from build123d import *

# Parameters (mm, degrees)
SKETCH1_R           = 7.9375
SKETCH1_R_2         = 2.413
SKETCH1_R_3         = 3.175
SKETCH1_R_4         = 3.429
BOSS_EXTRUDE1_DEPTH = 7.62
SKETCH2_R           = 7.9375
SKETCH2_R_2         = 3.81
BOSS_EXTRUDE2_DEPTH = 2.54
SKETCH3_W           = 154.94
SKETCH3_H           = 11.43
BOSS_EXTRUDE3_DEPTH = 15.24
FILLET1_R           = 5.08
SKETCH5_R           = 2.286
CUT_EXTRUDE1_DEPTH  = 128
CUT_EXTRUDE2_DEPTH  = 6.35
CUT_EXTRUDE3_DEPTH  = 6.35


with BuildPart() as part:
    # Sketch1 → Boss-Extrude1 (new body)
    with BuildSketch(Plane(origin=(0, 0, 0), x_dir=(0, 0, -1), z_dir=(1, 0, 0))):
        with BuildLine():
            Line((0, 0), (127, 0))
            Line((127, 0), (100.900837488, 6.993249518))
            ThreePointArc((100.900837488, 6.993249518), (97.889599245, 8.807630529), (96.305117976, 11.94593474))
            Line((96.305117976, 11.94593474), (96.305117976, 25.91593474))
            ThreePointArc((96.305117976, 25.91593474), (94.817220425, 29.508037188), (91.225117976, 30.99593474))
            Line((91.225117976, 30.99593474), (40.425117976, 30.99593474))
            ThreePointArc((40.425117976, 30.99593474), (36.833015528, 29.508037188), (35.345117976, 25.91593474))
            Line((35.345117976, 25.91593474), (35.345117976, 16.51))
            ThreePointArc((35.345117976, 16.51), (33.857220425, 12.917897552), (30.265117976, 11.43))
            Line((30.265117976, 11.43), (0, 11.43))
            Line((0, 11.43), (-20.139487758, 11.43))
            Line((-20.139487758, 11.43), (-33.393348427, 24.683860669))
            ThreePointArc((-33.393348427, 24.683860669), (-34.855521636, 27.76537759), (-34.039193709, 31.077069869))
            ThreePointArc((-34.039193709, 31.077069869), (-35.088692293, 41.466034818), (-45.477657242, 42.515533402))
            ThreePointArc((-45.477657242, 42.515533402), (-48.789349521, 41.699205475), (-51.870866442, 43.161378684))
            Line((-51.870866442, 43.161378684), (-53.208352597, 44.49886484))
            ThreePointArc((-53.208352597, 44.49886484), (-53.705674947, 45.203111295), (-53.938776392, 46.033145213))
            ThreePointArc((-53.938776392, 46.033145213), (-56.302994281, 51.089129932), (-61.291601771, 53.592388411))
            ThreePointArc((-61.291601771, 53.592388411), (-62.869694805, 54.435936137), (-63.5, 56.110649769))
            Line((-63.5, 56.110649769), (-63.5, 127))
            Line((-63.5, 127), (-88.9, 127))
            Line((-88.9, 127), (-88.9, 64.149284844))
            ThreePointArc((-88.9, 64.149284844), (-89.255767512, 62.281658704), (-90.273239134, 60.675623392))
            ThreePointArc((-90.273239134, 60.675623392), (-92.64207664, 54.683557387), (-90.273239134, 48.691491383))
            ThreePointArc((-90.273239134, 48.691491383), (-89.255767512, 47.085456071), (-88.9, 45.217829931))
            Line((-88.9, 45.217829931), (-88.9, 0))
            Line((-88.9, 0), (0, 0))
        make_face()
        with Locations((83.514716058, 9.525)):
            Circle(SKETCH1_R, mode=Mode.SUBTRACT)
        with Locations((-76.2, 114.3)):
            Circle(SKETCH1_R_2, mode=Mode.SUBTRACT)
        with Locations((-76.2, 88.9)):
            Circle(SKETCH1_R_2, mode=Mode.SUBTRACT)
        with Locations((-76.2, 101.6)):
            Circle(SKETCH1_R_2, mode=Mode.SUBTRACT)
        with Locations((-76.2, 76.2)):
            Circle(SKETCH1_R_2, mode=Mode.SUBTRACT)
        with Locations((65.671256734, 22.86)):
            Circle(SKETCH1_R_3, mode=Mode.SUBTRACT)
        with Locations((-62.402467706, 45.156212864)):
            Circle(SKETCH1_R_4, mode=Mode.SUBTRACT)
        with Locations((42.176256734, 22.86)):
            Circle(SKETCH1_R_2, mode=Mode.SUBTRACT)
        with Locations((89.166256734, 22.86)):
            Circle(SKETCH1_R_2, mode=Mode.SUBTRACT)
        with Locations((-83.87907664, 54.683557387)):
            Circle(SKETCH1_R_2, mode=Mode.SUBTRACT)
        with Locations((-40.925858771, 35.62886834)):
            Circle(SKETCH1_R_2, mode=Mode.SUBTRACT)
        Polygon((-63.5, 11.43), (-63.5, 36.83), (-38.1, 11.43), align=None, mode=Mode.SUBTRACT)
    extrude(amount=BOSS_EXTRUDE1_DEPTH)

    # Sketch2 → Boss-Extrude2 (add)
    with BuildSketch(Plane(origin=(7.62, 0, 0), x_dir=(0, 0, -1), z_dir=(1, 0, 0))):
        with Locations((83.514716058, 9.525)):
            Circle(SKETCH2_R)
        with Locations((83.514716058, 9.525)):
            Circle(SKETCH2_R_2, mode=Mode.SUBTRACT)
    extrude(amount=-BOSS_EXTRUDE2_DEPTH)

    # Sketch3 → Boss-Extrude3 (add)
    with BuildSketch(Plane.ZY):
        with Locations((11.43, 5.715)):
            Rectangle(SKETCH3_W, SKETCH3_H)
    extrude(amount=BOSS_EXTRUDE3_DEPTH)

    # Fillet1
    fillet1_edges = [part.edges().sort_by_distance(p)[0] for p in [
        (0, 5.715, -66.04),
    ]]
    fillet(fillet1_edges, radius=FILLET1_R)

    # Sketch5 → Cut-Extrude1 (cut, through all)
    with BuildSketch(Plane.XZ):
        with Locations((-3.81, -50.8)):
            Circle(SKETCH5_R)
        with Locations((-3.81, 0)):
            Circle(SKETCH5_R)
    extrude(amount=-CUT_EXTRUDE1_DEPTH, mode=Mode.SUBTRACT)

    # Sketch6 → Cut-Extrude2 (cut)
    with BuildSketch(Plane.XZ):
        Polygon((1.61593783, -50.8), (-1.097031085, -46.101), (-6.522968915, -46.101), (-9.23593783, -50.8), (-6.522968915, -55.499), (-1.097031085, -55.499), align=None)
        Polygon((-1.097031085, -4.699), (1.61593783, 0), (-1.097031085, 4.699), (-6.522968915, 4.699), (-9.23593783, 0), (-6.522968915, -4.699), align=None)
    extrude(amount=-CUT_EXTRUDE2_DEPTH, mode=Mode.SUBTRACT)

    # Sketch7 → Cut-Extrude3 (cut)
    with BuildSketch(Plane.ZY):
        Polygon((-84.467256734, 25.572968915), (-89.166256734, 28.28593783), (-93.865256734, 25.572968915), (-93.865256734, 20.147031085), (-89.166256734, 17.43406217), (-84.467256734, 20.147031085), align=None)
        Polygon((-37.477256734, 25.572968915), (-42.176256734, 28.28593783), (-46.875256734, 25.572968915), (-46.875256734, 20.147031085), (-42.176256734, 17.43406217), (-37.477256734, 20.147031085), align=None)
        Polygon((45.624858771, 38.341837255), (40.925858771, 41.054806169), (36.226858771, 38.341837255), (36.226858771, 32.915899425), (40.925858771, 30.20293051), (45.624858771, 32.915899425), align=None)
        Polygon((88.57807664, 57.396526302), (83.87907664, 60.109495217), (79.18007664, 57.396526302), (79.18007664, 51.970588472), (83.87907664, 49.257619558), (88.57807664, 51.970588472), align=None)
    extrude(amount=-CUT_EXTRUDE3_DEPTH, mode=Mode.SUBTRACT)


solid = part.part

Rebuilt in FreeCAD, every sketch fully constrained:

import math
import FreeCAD as App
import Part
import Sketcher
from FreeCAD import Vector
Q = App.Units.Quantity


def edges_at(feature, points):
    """Names of the edges that pass closest to the given points."""
    edges = feature.Shape.Edges
    near = lambda p: min(range(len(edges)), key=lambda i: edges[i].distToShape(Part.Vertex(*p))[0])
    return sorted({f"Edge{near(p) + 1}" for p in points})


def add_polygon(sketch, points):
    """Adds a closed chain of lines whose ends are joined by coincident constraints."""
    first, n = sketch.GeometryCount, len(points)
    for a, b in zip(points, points[1:] + points[:1]):
        sketch.addGeometry(Part.LineSegment(App.Vector(*a, 0), App.Vector(*b, 0)), False)
    for i in range(n):
        sketch.addConstraint(Sketcher.Constraint("Coincident", first + i, 2, first + (i + 1) % n, 1))

doc = App.newDocument("Part")
body = doc.addObject("PartDesign::Body", "Body")

sketch1 = body.newObject("Sketcher::SketchObject", "Sketch")
sketch1.AttachmentSupport = (doc.getObject("YZ_Plane"), [""])
sketch1.MapMode = "FlatFace"
sketch1.addGeometry(Part.LineSegment(Vector(0, -127, 0), Vector(7, -100.9, 0)), False)
sketch1.addGeometry(Part.ArcOfCircle(Part.Circle(Vector(13.1, -102.5, 0), Vector(0, 0, 1), 6.4), math.radians(101), math.radians(165)), False)
sketch1.addGeometry(Part.LineSegment(Vector(11.9, -96.3, 0), Vector(25.9, -96.3, 0)), False)
sketch1.addGeometry(Part.ArcOfCircle(Part.Circle(Vector(25.9, -91.2, 0), Vector(0, 0, 1), 5.1), math.radians(-90), math.radians(0)), False)
sketch1.addGeometry(Part.LineSegment(Vector(31, -91.2, 0), Vector(31, -40.4, 0)), False)
sketch1.addGeometry(Part.ArcOfCircle(Part.Circle(Vector(25.9, -40.4, 0), Vector(0, 0, 1), 5.1), math.radians(0), math.radians(90)), False)
sketch1.addGeometry(Part.LineSegment(Vector(25.9, -35.3, 0), Vector(16.5, -35.3, 0)), False)
sketch1.addGeometry(Part.ArcOfCircle(Part.Circle(Vector(16.5, -30.3, 0), Vector(0, 0, 1), 5.1), math.radians(180), math.radians(270)), False)
sketch1.addGeometry(Part.LineSegment(Vector(11.4, -30.3, 0), Vector(11.4, 20.1, 0)), False)
sketch1.addGeometry(Part.LineSegment(Vector(11.4, 20.1, 0), Vector(24.7, 33.4, 0)), False)
sketch1.addGeometry(Part.ArcOfCircle(Part.Circle(Vector(28.3, 29.8, 0), Vector(0, 0, 1), 5.1), math.radians(57), math.radians(135)), False)
sketch1.addGeometry(Part.ArcOfCircle(Part.Circle(Vector(35.6, 40.9, 0), Vector(0, 0, 1), 8.3), math.radians(-123), math.radians(33)), False)
sketch1.addGeometry(Part.ArcOfCircle(Part.Circle(Vector(46.8, 48.3, 0), Vector(0, 0, 1), 5.1), math.radians(135), math.radians(213)), False)
sketch1.addGeometry(Part.LineSegment(Vector(43.2, 51.9, 0), Vector(44.5, 53.2, 0)), False)
sketch1.addGeometry(Part.ArcOfCircle(Part.Circle(Vector(46.3, 51.4, 0), Vector(0, 0, 1), 2.5), math.radians(96), math.radians(135)), False)
sketch1.addGeometry(Part.ArcOfCircle(Part.Circle(Vector(45.2, 62.4, 0), Vector(0, 0, 1), 8.5), math.radians(-84), math.radians(-8)), False)
sketch1.addGeometry(Part.ArcOfCircle(Part.Circle(Vector(56.1, 61, 0), Vector(0, 0, 1), 2.5), math.radians(90), math.radians(172)), False)
sketch1.addGeometry(Part.LineSegment(Vector(56.1, 63.5, 0), Vector(127, 63.5, 0)), False)
sketch1.addGeometry(Part.LineSegment(Vector(127, 63.5, 0), Vector(127, 88.9, 0)), False)
sketch1.addGeometry(Part.LineSegment(Vector(127, 88.9, 0), Vector(64.1, 88.9, 0)), False)
sketch1.addGeometry(Part.ArcOfCircle(Part.Circle(Vector(64.1, 94, 0), Vector(0, 0, 1), 5.1), math.radians(-133), math.radians(-90)), False)
sketch1.addGeometry(Part.ArcOfCircle(Part.Circle(Vector(54.7, 83.9, 0), Vector(0, 0, 1), 8.8), math.radians(47), math.radians(133)), False)
sketch1.addGeometry(Part.ArcOfCircle(Part.Circle(Vector(45.2, 94, 0), Vector(0, 0, 1), 5.1), math.radians(-90), math.radians(-47)), False)
sketch1.addGeometry(Part.LineSegment(Vector(45.2, 88.9, 0), Vector(0, 88.9, 0)), False)
sketch1.addGeometry(Part.LineSegment(Vector(0, 88.9, 0), Vector(0, -127, 0)), False)
add_polygon(sketch1, [(11.4, 38.1), (11.4, 63.5), (36.8, 63.5)])
sketch1.addGeometry(Part.Circle(Vector(54.7, 83.9, 0), Vector(0, 0, 1), 2.4), False)
sketch1.addGeometry(Part.Circle(Vector(45.2, 62.4, 0), Vector(0, 0, 1), 3.4), False)
sketch1.addGeometry(Part.Circle(Vector(35.6, 40.9, 0), Vector(0, 0, 1), 2.4), False)
sketch1.addGeometry(Part.Circle(Vector(22.9, -42.2, 0), Vector(0, 0, 1), 2.4), False)
sketch1.addGeometry(Part.Circle(Vector(9.5, -83.5, 0), Vector(0, 0, 1), 7.9), False)
sketch1.addGeometry(Part.Circle(Vector(22.9, -65.7, 0), Vector(0, 0, 1), 3.2), False)
sketch1.addGeometry(Part.Circle(Vector(22.9, -89.2, 0), Vector(0, 0, 1), 2.4), False)
sketch1.addGeometry(Part.Circle(Vector(76.2, 76.2, 0), Vector(0, 0, 1), 2.4), False)
sketch1.addGeometry(Part.Circle(Vector(88.9, 76.2, 0), Vector(0, 0, 1), 2.4), False)
sketch1.addGeometry(Part.Circle(Vector(101.6, 76.2, 0), Vector(0, 0, 1), 2.4), False)
sketch1.addGeometry(Part.Circle(Vector(114.3, 76.2, 0), Vector(0, 0, 1), 2.4), False)
sketch1.addConstraint([
    Sketcher.Constraint("Tangent", 0, 2, 1, 2),
    Sketcher.Constraint("Coincident", 1, 1, 2, 1),
    Sketcher.Constraint("Tangent", 2, 2, 3, 1),
    Sketcher.Constraint("Tangent", 3, 2, 4, 1),
    Sketcher.Constraint("Tangent", 4, 2, 5, 1),
    Sketcher.Constraint("Tangent", 5, 2, 6, 1),
    Sketcher.Constraint("Tangent", 6, 2, 7, 2),
    Sketcher.Constraint("Tangent", 7, 1, 8, 1),
    Sketcher.Constraint("Coincident", 8, 2, 9, 1),
    Sketcher.Constraint("Tangent", 9, 2, 10, 2),
    Sketcher.Constraint("Tangent", 10, 1, 11, 1),
    Sketcher.Constraint("Tangent", 11, 2, 12, 2),
    Sketcher.Constraint("Tangent", 12, 1, 13, 1),
    Sketcher.Constraint("Tangent", 13, 2, 14, 2),
    Sketcher.Constraint("Tangent", 14, 1, 15, 1),
    Sketcher.Constraint("Tangent", 15, 2, 16, 2),
    Sketcher.Constraint("Tangent", 16, 1, 17, 1),
    Sketcher.Constraint("Coincident", 17, 2, 18, 1),
    Sketcher.Constraint("Coincident", 18, 2, 19, 1),
    Sketcher.Constraint("Tangent", 19, 2, 20, 2),
    Sketcher.Constraint("Tangent", 20, 1, 21, 1),
    Sketcher.Constraint("Tangent", 21, 2, 22, 2),
    Sketcher.Constraint("Tangent", 22, 1, 23, 1),
    Sketcher.Constraint("Coincident", 23, 2, 24, 1),
    Sketcher.Constraint("Coincident", 24, 2, 0, 1),
    Sketcher.Constraint("Horizontal", 2),
    Sketcher.Constraint("Vertical", 4),
    Sketcher.Constraint("Horizontal", 6),
    Sketcher.Constraint("Vertical", 8),
    Sketcher.Constraint("Horizontal", 17),
    Sketcher.Constraint("Vertical", 18),
    Sketcher.Constraint("Horizontal", 19),
    Sketcher.Constraint("Horizontal", 23),
    Sketcher.Constraint("Vertical", 24),
    Sketcher.Constraint("Vertical", 25),
    Sketcher.Constraint("Horizontal", 26),
    Sketcher.Constraint("Coincident", 28, 3, 21, 3),
    Sketcher.Constraint("Coincident", 29, 3, 15, 3),
    Sketcher.Constraint("Coincident", 30, 3, 11, 3),
    Sketcher.Constraint("Equal", 3, 5),
    Sketcher.Constraint("Equal", 5, 7),
    Sketcher.Constraint("Equal", 7, 10),
    Sketcher.Constraint("Equal", 10, 12),
    Sketcher.Constraint("Equal", 14, 16),
    Sketcher.Constraint("Equal", 12, 20),
    Sketcher.Constraint("Equal", 20, 22),
    Sketcher.Constraint("Equal", 28, 30),
    Sketcher.Constraint("Equal", 30, 31),
    Sketcher.Constraint("Equal", 31, 34),
    Sketcher.Constraint("Equal", 34, 35),
    Sketcher.Constraint("Equal", 35, 36),
    Sketcher.Constraint("Equal", 36, 37),
    Sketcher.Constraint("Equal", 37, 38),
    Sketcher.Constraint("PointOnObject", 23, 2, -2),
    Sketcher.Constraint("Parallel", 9, 13),
    Sketcher.Constraint("Parallel", 13, 27),
    Sketcher.Constraint("Horizontal", 20, 3, 22, 3),
    Sketcher.Constraint("Horizontal", 35, 3, 36, 3),
    Sketcher.Constraint("Horizontal", 36, 3, 37, 3),
    Sketcher.Constraint("Horizontal", 37, 3, 38, 3),
    Sketcher.Constraint("Horizontal", 17, 2, 25, 2),
    Sketcher.Constraint("Vertical", 31, 3, 33, 3),
    Sketcher.Constraint("Vertical", 33, 3, 34, 3),
    Sketcher.Constraint("Vertical", 8, 2, 25, 2),
    Sketcher.Constraint("Equal", 26, 18),
    Sketcher.Constraint("Equal", 18, 25),
    Sketcher.Constraint("Radius", 3, Q("0.2 in")),
    Sketcher.Constraint("Radius", 14, Q("0.1 in")),
    Sketcher.Constraint("Diameter", 28, Q("0.19 in")),
    Sketcher.Constraint("Diameter", 29, Q("0.27 in")),
    Sketcher.Constraint("Diameter", 33, Q("0.25 in")),
    Sketcher.Constraint("DistanceX", 26, 1, 26, 2, Q("1 in")),
    Sketcher.Constraint("DistanceY", 4, 1, 4, 2, Q("2 in")),
    Sketcher.Constraint("Radius", 1, Q("0.25 in")),
    Sketcher.Constraint("Diameter", 32, Q("0.625 in")),
    Sketcher.Constraint("DistanceY", 24, 2, 24, 1, Q("8.5 in")),
    Sketcher.Constraint("DistanceX", -1, 1, 35, 3, Q("3 in")),
    Sketcher.Constraint("DistanceY", -1, 1, 35, 3, Q("3 in")),
    Sketcher.Constraint("DistanceX", -1, 1, 37, 3, Q("4 in")),
    Sketcher.Constraint("DistanceX", -1, 1, 17, 2, Q("5 in")),
    Sketcher.Constraint("DistanceY", 24, 2, -1, 1, Q("5 in")),
    Sketcher.Constraint("Angle", 0, Q("75 deg")),
    Sketcher.Constraint("Radius", 11, Q("0.325 in")),
    Sketcher.Constraint("Radius", 15, Q("0.335 in")),
    Sketcher.Constraint("Radius", 21, Q("0.345 in")),
    Sketcher.Constraint("DistanceX", 36, 3, 38, 3, Q("1 in")),
    Sketcher.Constraint("DistanceX", 2, 1, 2, 2, Q("0.55 in")),
    Sketcher.Constraint("DistanceX", -1, 1, 31, 3, Q("0.9 in")),
    Sketcher.Constraint("DistanceX", -1, 1, 36, 3, Q("3.5 in")),
    Sketcher.Constraint("DistanceX", -1, 1, 7, 3, Q("0.65 in")),
    Sketcher.Constraint("DistanceY", 34, 3, 31, 3, Q("1.85 in")),
    Sketcher.Constraint("DistanceX", -1, 1, 32, 3, Q("0.375 in")),
    Sketcher.Constraint("DistanceY", 33, 3, 31, 3, Q("0.925 in")),
    Sketcher.Constraint("DistanceX", 17, 1, 17, 2, Q("70.88935 mm")),
    Sketcher.Constraint("DistanceX", 23, 2, 23, 1, Q("45.21783 mm")),
    Sketcher.Constraint("DistanceY", -1, 1, 14, 3, Q("51.412301 mm")),
    Sketcher.Constraint("DistanceY", 3, 3, 32, 3, Q("7.710402 mm")),
    Sketcher.Constraint("DistanceX", 10, 1, 30, 3, Q("4.551798 mm")),
    Sketcher.Constraint("DistanceY", 30, 3, 11, 2, Q("4.551798 mm")),
    Sketcher.Constraint("DistanceY", 12, 1, 15, 3, Q("10.531601 mm")),
    Sketcher.Constraint("Distance", 0, Q("27.019841 mm")),
    Sketcher.Constraint("Distance", 9, Q("18.74379 mm")),
    Sketcher.Constraint("DistanceX", 6, 2, 6, 1, Q("9.405935 mm")),
    Sketcher.Constraint("DistanceX", 19, 2, 19, 1, Q("62.850715 mm")),
    Sketcher.Constraint("DistanceY", 31, 3, 5, 3, Q("1.751139 mm")),
])
pad1 = body.newObject("PartDesign::Pad", "Pad")
pad1.Profile = sketch1
pad1.Length = Q("0.3 in")

sketch2 = body.newObject("Sketcher::SketchObject", "Sketch001")
sketch2.AttachmentSupport = (doc.getObject("YZ_Plane"), [""])
sketch2.MapMode = "FlatFace"
sketch2.AttachmentOffset = App.Placement(Vector(0, 0, 0.3 * 25.4), App.Rotation())
sketch2.addGeometry([
    Part.Circle(Vector(9.5, -83.5, 0), Vector(0, 0, 1), 7.9),
    Part.Circle(Vector(9.5, -83.5, 0), Vector(0, 0, 1), 3.8),
], False)
sketch2.addConstraint([
    Sketcher.Constraint("Coincident", 1, 3, 0, 3),
    Sketcher.Constraint("Diameter", 1, Q("0.3 in")),
    Sketcher.Constraint("Diameter", 0, Q("0.625 in")),
    Sketcher.Constraint("DistanceX", -1, 1, 0, 3, Q("0.375 in")),
    Sketcher.Constraint("DistanceY", 0, 3, -1, 1, Q("83.514716 mm")),
])
pad2 = body.newObject("PartDesign::Pad", "Pad001")
pad2.Profile = sketch2
pad2.Length = Q("0.1 in")
pad2.Reversed = True

sketch3 = body.newObject("Sketcher::SketchObject", "Sketch002")
sketch3.AttachmentSupport = (doc.getObject("YZ_Plane"), [""])
sketch3.MapMode = "FlatFace"
add_polygon(sketch3, [(11, -66), (0, -66), (0, 89), (11, 89)])
sketch3.addConstraint([
    Sketcher.Constraint("Horizontal", 0),
    Sketcher.Constraint("Vertical", 1),
    Sketcher.Constraint("Horizontal", 2),
    Sketcher.Constraint("Vertical", 3),
    Sketcher.Constraint("PointOnObject", 0, 2, -2),
    Sketcher.Constraint("DistanceY", 1, 1, 1, 2, Q("6.1 in")),
    Sketcher.Constraint("DistanceX", 0, 2, 0, 1, Q("0.45 in")),
    Sketcher.Constraint("DistanceY", 0, 2, -1, 1, Q("2.6 in")),
])
pad3 = body.newObject("PartDesign::Pad", "Pad002")
pad3.Profile = sketch3
pad3.Length = Q("0.6 in")
pad3.Reversed = True
doc.recompute()

fillet = body.newObject("PartDesign::Fillet", "Fillet")
fillet.Base = (pad3, edges_at(pad3, [(0, 5.715, -66.04)]))
fillet.Radius = Q("0.2 in")

sketch4 = body.newObject("Sketcher::SketchObject", "Sketch003")
sketch4.AttachmentSupport = (doc.getObject("XZ_Plane"), [""])
sketch4.MapMode = "FlatFace"
sketch4.addGeometry([
    Part.Circle(Vector(-3.8, -50.8, 0), Vector(0, 0, 1), 2.3),
    Part.Circle(Vector(-3.8, 0, 0), Vector(0, 0, 1), 2.3),
], False)
sketch4.addConstraint([
    Sketcher.Constraint("Equal", 0, 1),
    Sketcher.Constraint("PointOnObject", 1, 3, -1),
    Sketcher.Constraint("Vertical", 0, 3, 1, 3),
    Sketcher.Constraint("Diameter", 0, Q("0.18 in")),
    Sketcher.Constraint("DistanceY", 0, 3, -1, 1, Q("2 in")),
    Sketcher.Constraint("DistanceX", 0, 3, -1, 1, Q("0.15 in")),
])
pocket1 = body.newObject("PartDesign::Pocket", "Pocket")
pocket1.Profile = sketch4
pocket1.Type = "ThroughAll"

sketch5 = body.newObject("Sketcher::SketchObject", "Sketch004")
sketch5.AttachmentSupport = (doc.getObject("XZ_Plane"), [""])
sketch5.MapMode = "FlatFace"
add_polygon(sketch5, [(2, -51), (-1, -46), (-7, -46), (-9, -51), (-7, -55), (-1, -55)])
add_polygon(sketch5, [(-1, -5), (2, 0), (-1, 5), (-7, 5), (-9, 0), (-7, -5)])
sketch5.addConstraint([
    Sketcher.Constraint("Horizontal", 1),
    Sketcher.Constraint("Horizontal", 4),
    Sketcher.Constraint("Horizontal", 8),
    Sketcher.Constraint("Horizontal", 11),
    Sketcher.Constraint("Symmetric", 8, 2, 10, 2, -1),
    Sketcher.Constraint("PointOnObject", 6, 2, -1),
    Sketcher.Constraint("PointOnObject", 9, 2, -1),
    Sketcher.Constraint("Parallel", 0, 3),
    Sketcher.Constraint("Parallel", 2, 5),
    Sketcher.Constraint("Parallel", 5, 6),
    Sketcher.Constraint("Parallel", 3, 7),
    Sketcher.Constraint("Parallel", 6, 9),
    Sketcher.Constraint("Parallel", 7, 10),
    Sketcher.Constraint("Horizontal", 2, 2, 5, 2),
    Sketcher.Constraint("Vertical", 1, 2, 3, 2),
    Sketcher.Constraint("Vertical", 5, 2, 6, 2),
    Sketcher.Constraint("Vertical", 4, 2, 7, 2),
    Sketcher.Constraint("Vertical", 3, 2, 8, 2),
    Sketcher.Constraint("DistanceY", 2, 2, -1, 1, Q("2 in")),
    Sketcher.Constraint("Angle", 0, Q("120 deg")),
    Sketcher.Constraint("DistanceY", 3, 2, 1, 2, Q("0.37 in")),
    Sketcher.Constraint("DistanceX", 1, 2, 1, 1, Q("5.425938 mm")),
    Sketcher.Constraint("DistanceX", 0, 2, -1, 1, Q("1.097031 mm")),
])
pocket2 = body.newObject("PartDesign::Pocket", "Pocket001")
pocket2.Profile = sketch5
pocket2.Length = Q("0.25 in")

sketch6 = body.newObject("Sketcher::SketchObject", "Sketch005")
sketch6.AttachmentSupport = (doc.getObject("YZ_Plane"), [""])
sketch6.MapMode = "FlatFace"
add_polygon(sketch6, [(26, -84), (28, -89), (26, -94), (20, -94), (17, -89), (20, -84)])
add_polygon(sketch6, [(26, -37), (28, -42), (26, -47), (20, -47), (17, -42), (20, -37)])
add_polygon(sketch6, [(38, 46), (41, 41), (38, 36), (33, 36), (30, 41), (33, 46)])
add_polygon(sketch6, [(57, 89), (60, 84), (57, 79), (52, 79), (49, 84), (52, 89)])
sketch6.addConstraint([
    Sketcher.Constraint("Horizontal", 2),
    Sketcher.Constraint("Horizontal", 5),
    Sketcher.Constraint("Horizontal", 8),
    Sketcher.Constraint("Horizontal", 11),
    Sketcher.Constraint("Horizontal", 14),
    Sketcher.Constraint("Horizontal", 17),
    Sketcher.Constraint("Horizontal", 20),
    Sketcher.Constraint("Horizontal", 23),
    Sketcher.Constraint("Parallel", 0, 3),
    Sketcher.Constraint("Parallel", 1, 4),
    Sketcher.Constraint("Parallel", 3, 6),
    Sketcher.Constraint("Parallel", 4, 7),
    Sketcher.Constraint("Parallel", 6, 9),
    Sketcher.Constraint("Parallel", 7, 10),
    Sketcher.Constraint("Parallel", 9, 12),
    Sketcher.Constraint("Parallel", 10, 13),
    Sketcher.Constraint("Parallel", 12, 15),
    Sketcher.Constraint("Parallel", 13, 16),
    Sketcher.Constraint("Parallel", 15, 18),
    Sketcher.Constraint("Parallel", 16, 19),
    Sketcher.Constraint("Parallel", 18, 21),
    Sketcher.Constraint("Parallel", 19, 22),
    Sketcher.Constraint("Horizontal", 0, 2, 3, 2),
    Sketcher.Constraint("Horizontal", 6, 2, 9, 2),
    Sketcher.Constraint("Horizontal", 12, 2, 15, 2),
    Sketcher.Constraint("Horizontal", 18, 2, 21, 2),
    Sketcher.Constraint("Vertical", 2, 2, 4, 2),
    Sketcher.Constraint("Vertical", 1, 2, 5, 2),
    Sketcher.Constraint("Vertical", 0, 2, 6, 2),
    Sketcher.Constraint("Vertical", 5, 2, 7, 2),
    Sketcher.Constraint("Vertical", 4, 2, 8, 2),
    Sketcher.Constraint("Vertical", 8, 2, 10, 2),
    Sketcher.Constraint("Vertical", 14, 2, 16, 2),
    Sketcher.Constraint("Vertical", 20, 2, 22, 2),
    Sketcher.Constraint("Equal", 11, 14),
    Sketcher.Constraint("Equal", 17, 20),
    Sketcher.Constraint("Equal", 10, 12),
    Sketcher.Constraint("Equal", 16, 18),
    Sketcher.Constraint("Angle", 0, Q("-60 deg")),
    Sketcher.Constraint("DistanceY", 2, 2, 4, 2, Q("0.37 in")),
    Sketcher.Constraint("DistanceY", 0, 2, 6, 2, Q("1.85 in")),
    Sketcher.Constraint("DistanceX", -1, 1, 14, 2, Q("32.915899 mm")),
    Sketcher.Constraint("DistanceX", 6, 2, 13, 2, Q("10.055899 mm")),
    Sketcher.Constraint("DistanceX", 2, 2, 2, 1, Q("5.425938 mm")),
    Sketcher.Constraint("DistanceY", -1, 1, 12, 2, Q("40.925859 mm")),
    Sketcher.Constraint("DistanceX", -1, 1, 20, 2, Q("51.970588 mm")),
    Sketcher.Constraint("DistanceY", 0, 2, -1, 1, Q("89.166257 mm")),
    Sketcher.Constraint("DistanceY", -1, 1, 18, 2, Q("83.879077 mm")),
])
pocket3 = body.newObject("PartDesign::Pocket", "Pocket002")
pocket3.Profile = sketch6
pocket3.Length = Q("0.25 in")
pocket3.Reversed = True

doc.recompute()
